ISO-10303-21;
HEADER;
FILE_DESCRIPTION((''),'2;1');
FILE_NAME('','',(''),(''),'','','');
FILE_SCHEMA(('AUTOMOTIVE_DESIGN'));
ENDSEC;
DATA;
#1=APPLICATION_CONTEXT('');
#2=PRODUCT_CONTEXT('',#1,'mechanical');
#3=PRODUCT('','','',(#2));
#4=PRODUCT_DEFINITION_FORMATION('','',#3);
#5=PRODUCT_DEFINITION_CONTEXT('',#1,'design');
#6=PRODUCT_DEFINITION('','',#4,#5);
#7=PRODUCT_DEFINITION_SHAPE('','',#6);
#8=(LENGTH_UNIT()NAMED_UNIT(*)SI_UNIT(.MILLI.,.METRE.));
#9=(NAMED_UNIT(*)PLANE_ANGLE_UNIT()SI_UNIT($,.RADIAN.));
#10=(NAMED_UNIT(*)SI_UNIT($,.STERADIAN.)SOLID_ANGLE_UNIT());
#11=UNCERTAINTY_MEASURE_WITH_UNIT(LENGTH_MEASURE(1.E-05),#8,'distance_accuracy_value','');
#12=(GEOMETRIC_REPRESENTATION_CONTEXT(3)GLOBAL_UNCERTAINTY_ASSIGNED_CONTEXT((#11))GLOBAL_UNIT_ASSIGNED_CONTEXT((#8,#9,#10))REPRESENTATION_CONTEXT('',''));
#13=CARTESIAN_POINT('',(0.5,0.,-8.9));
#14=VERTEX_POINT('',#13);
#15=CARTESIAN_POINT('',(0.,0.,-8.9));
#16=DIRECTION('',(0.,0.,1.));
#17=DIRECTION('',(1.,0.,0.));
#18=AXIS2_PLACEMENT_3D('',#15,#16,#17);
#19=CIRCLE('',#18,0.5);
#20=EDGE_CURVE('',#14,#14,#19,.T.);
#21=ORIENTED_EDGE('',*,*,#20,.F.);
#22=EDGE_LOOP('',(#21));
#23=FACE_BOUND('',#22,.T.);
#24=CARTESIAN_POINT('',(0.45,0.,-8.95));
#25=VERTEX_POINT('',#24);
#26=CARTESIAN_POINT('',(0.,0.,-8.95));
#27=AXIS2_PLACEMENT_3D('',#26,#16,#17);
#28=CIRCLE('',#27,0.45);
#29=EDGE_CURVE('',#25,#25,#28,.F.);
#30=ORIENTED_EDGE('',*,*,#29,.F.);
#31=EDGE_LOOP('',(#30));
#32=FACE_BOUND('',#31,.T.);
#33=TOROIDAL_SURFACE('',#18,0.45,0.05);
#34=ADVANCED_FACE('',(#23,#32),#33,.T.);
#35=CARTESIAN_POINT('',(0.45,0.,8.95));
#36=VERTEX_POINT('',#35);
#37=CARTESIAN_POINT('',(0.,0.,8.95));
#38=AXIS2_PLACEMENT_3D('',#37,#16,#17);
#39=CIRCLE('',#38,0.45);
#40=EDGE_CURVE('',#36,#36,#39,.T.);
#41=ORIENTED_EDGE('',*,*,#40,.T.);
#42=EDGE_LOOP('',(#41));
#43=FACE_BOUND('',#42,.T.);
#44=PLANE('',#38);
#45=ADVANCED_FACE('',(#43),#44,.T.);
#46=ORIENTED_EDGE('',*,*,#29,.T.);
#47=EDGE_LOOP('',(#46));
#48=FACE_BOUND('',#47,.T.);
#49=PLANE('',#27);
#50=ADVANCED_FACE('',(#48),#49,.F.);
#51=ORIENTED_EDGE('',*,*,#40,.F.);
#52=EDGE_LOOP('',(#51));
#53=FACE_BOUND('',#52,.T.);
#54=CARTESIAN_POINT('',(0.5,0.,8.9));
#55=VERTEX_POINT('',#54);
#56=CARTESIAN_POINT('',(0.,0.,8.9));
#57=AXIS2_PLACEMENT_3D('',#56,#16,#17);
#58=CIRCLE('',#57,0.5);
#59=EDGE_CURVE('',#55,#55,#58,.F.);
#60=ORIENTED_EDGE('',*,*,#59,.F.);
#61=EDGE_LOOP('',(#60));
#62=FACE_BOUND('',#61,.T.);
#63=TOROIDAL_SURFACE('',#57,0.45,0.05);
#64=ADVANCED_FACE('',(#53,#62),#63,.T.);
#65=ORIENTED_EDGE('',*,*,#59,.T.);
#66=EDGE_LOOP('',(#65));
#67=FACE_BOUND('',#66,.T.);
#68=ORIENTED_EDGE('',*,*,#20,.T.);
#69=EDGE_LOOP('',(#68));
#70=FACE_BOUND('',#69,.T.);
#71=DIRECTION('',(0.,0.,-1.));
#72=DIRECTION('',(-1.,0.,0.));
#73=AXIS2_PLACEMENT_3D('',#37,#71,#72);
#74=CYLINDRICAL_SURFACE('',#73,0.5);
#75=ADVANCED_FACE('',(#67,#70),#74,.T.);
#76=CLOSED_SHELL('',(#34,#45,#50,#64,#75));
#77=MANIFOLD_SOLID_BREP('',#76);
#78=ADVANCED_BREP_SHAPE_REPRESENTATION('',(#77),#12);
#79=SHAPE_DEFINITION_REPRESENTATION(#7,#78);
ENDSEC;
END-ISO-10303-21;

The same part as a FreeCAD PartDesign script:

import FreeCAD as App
import Part
import Sketcher

V = App.Vector


def edges_at(feature, points):
    """Names of the edges that pass closest to the given points."""
    edges = feature.Shape.Edges
    near = lambda p: min(range(len(edges)), key=lambda i: edges[i].distToShape(Part.Vertex(*p))[0])
    return sorted({f"Edge{near(p) + 1}" for p in points})

doc = App.newDocument("Part")
params = doc.addObject("Spreadsheet::Sheet", "Params")
for row, (alias, value) in enumerate([
    ("sketch1_diameter", "1 mm"),
    ("pad1_length", "17.9 mm"),
    ("fillet_radius", "0.05 mm"),
], start=1):
    params.set(f"A{row}", alias)
    params.set(f"B{row}", "=" + value)
    params.setAlias(f"B{row}", alias)

body = doc.addObject("PartDesign::Body", "Body")

# Sketch on XY plane
sketch1 = body.newObject("Sketcher::SketchObject", "Sketch")
sketch1.AttachmentSupport = (doc.getObject("XY_Plane"), [""])
sketch1.MapMode = "FlatFace"
sketch1.addGeometry(Part.Circle(V(0, 0, 0), V(0, 0, 1), 0.5), False)
sketch1.addConstraint(Sketcher.Constraint("Coincident", 0, 3, -1, 1))
sketch1.addConstraint(Sketcher.Constraint("Diameter", 0, 1.0))
sketch1.setExpression("Constraints[1]", "Params.sketch1_diameter")
pad1 = body.newObject("PartDesign::Pad", "Pad")
pad1.Profile = sketch1
pad1.setExpression("Length", "Params.pad1_length")
pad1.Midplane = True
doc.recompute()

fillet = body.newObject("PartDesign::Fillet", "Fillet")
fillet.Base = (pad1, edges_at(pad1, [(-0.5, 0, -8.95), (-0.5, 0, 8.95)]))
fillet.setExpression("Radius", "Params.fillet_radius")

doc.recompute()
